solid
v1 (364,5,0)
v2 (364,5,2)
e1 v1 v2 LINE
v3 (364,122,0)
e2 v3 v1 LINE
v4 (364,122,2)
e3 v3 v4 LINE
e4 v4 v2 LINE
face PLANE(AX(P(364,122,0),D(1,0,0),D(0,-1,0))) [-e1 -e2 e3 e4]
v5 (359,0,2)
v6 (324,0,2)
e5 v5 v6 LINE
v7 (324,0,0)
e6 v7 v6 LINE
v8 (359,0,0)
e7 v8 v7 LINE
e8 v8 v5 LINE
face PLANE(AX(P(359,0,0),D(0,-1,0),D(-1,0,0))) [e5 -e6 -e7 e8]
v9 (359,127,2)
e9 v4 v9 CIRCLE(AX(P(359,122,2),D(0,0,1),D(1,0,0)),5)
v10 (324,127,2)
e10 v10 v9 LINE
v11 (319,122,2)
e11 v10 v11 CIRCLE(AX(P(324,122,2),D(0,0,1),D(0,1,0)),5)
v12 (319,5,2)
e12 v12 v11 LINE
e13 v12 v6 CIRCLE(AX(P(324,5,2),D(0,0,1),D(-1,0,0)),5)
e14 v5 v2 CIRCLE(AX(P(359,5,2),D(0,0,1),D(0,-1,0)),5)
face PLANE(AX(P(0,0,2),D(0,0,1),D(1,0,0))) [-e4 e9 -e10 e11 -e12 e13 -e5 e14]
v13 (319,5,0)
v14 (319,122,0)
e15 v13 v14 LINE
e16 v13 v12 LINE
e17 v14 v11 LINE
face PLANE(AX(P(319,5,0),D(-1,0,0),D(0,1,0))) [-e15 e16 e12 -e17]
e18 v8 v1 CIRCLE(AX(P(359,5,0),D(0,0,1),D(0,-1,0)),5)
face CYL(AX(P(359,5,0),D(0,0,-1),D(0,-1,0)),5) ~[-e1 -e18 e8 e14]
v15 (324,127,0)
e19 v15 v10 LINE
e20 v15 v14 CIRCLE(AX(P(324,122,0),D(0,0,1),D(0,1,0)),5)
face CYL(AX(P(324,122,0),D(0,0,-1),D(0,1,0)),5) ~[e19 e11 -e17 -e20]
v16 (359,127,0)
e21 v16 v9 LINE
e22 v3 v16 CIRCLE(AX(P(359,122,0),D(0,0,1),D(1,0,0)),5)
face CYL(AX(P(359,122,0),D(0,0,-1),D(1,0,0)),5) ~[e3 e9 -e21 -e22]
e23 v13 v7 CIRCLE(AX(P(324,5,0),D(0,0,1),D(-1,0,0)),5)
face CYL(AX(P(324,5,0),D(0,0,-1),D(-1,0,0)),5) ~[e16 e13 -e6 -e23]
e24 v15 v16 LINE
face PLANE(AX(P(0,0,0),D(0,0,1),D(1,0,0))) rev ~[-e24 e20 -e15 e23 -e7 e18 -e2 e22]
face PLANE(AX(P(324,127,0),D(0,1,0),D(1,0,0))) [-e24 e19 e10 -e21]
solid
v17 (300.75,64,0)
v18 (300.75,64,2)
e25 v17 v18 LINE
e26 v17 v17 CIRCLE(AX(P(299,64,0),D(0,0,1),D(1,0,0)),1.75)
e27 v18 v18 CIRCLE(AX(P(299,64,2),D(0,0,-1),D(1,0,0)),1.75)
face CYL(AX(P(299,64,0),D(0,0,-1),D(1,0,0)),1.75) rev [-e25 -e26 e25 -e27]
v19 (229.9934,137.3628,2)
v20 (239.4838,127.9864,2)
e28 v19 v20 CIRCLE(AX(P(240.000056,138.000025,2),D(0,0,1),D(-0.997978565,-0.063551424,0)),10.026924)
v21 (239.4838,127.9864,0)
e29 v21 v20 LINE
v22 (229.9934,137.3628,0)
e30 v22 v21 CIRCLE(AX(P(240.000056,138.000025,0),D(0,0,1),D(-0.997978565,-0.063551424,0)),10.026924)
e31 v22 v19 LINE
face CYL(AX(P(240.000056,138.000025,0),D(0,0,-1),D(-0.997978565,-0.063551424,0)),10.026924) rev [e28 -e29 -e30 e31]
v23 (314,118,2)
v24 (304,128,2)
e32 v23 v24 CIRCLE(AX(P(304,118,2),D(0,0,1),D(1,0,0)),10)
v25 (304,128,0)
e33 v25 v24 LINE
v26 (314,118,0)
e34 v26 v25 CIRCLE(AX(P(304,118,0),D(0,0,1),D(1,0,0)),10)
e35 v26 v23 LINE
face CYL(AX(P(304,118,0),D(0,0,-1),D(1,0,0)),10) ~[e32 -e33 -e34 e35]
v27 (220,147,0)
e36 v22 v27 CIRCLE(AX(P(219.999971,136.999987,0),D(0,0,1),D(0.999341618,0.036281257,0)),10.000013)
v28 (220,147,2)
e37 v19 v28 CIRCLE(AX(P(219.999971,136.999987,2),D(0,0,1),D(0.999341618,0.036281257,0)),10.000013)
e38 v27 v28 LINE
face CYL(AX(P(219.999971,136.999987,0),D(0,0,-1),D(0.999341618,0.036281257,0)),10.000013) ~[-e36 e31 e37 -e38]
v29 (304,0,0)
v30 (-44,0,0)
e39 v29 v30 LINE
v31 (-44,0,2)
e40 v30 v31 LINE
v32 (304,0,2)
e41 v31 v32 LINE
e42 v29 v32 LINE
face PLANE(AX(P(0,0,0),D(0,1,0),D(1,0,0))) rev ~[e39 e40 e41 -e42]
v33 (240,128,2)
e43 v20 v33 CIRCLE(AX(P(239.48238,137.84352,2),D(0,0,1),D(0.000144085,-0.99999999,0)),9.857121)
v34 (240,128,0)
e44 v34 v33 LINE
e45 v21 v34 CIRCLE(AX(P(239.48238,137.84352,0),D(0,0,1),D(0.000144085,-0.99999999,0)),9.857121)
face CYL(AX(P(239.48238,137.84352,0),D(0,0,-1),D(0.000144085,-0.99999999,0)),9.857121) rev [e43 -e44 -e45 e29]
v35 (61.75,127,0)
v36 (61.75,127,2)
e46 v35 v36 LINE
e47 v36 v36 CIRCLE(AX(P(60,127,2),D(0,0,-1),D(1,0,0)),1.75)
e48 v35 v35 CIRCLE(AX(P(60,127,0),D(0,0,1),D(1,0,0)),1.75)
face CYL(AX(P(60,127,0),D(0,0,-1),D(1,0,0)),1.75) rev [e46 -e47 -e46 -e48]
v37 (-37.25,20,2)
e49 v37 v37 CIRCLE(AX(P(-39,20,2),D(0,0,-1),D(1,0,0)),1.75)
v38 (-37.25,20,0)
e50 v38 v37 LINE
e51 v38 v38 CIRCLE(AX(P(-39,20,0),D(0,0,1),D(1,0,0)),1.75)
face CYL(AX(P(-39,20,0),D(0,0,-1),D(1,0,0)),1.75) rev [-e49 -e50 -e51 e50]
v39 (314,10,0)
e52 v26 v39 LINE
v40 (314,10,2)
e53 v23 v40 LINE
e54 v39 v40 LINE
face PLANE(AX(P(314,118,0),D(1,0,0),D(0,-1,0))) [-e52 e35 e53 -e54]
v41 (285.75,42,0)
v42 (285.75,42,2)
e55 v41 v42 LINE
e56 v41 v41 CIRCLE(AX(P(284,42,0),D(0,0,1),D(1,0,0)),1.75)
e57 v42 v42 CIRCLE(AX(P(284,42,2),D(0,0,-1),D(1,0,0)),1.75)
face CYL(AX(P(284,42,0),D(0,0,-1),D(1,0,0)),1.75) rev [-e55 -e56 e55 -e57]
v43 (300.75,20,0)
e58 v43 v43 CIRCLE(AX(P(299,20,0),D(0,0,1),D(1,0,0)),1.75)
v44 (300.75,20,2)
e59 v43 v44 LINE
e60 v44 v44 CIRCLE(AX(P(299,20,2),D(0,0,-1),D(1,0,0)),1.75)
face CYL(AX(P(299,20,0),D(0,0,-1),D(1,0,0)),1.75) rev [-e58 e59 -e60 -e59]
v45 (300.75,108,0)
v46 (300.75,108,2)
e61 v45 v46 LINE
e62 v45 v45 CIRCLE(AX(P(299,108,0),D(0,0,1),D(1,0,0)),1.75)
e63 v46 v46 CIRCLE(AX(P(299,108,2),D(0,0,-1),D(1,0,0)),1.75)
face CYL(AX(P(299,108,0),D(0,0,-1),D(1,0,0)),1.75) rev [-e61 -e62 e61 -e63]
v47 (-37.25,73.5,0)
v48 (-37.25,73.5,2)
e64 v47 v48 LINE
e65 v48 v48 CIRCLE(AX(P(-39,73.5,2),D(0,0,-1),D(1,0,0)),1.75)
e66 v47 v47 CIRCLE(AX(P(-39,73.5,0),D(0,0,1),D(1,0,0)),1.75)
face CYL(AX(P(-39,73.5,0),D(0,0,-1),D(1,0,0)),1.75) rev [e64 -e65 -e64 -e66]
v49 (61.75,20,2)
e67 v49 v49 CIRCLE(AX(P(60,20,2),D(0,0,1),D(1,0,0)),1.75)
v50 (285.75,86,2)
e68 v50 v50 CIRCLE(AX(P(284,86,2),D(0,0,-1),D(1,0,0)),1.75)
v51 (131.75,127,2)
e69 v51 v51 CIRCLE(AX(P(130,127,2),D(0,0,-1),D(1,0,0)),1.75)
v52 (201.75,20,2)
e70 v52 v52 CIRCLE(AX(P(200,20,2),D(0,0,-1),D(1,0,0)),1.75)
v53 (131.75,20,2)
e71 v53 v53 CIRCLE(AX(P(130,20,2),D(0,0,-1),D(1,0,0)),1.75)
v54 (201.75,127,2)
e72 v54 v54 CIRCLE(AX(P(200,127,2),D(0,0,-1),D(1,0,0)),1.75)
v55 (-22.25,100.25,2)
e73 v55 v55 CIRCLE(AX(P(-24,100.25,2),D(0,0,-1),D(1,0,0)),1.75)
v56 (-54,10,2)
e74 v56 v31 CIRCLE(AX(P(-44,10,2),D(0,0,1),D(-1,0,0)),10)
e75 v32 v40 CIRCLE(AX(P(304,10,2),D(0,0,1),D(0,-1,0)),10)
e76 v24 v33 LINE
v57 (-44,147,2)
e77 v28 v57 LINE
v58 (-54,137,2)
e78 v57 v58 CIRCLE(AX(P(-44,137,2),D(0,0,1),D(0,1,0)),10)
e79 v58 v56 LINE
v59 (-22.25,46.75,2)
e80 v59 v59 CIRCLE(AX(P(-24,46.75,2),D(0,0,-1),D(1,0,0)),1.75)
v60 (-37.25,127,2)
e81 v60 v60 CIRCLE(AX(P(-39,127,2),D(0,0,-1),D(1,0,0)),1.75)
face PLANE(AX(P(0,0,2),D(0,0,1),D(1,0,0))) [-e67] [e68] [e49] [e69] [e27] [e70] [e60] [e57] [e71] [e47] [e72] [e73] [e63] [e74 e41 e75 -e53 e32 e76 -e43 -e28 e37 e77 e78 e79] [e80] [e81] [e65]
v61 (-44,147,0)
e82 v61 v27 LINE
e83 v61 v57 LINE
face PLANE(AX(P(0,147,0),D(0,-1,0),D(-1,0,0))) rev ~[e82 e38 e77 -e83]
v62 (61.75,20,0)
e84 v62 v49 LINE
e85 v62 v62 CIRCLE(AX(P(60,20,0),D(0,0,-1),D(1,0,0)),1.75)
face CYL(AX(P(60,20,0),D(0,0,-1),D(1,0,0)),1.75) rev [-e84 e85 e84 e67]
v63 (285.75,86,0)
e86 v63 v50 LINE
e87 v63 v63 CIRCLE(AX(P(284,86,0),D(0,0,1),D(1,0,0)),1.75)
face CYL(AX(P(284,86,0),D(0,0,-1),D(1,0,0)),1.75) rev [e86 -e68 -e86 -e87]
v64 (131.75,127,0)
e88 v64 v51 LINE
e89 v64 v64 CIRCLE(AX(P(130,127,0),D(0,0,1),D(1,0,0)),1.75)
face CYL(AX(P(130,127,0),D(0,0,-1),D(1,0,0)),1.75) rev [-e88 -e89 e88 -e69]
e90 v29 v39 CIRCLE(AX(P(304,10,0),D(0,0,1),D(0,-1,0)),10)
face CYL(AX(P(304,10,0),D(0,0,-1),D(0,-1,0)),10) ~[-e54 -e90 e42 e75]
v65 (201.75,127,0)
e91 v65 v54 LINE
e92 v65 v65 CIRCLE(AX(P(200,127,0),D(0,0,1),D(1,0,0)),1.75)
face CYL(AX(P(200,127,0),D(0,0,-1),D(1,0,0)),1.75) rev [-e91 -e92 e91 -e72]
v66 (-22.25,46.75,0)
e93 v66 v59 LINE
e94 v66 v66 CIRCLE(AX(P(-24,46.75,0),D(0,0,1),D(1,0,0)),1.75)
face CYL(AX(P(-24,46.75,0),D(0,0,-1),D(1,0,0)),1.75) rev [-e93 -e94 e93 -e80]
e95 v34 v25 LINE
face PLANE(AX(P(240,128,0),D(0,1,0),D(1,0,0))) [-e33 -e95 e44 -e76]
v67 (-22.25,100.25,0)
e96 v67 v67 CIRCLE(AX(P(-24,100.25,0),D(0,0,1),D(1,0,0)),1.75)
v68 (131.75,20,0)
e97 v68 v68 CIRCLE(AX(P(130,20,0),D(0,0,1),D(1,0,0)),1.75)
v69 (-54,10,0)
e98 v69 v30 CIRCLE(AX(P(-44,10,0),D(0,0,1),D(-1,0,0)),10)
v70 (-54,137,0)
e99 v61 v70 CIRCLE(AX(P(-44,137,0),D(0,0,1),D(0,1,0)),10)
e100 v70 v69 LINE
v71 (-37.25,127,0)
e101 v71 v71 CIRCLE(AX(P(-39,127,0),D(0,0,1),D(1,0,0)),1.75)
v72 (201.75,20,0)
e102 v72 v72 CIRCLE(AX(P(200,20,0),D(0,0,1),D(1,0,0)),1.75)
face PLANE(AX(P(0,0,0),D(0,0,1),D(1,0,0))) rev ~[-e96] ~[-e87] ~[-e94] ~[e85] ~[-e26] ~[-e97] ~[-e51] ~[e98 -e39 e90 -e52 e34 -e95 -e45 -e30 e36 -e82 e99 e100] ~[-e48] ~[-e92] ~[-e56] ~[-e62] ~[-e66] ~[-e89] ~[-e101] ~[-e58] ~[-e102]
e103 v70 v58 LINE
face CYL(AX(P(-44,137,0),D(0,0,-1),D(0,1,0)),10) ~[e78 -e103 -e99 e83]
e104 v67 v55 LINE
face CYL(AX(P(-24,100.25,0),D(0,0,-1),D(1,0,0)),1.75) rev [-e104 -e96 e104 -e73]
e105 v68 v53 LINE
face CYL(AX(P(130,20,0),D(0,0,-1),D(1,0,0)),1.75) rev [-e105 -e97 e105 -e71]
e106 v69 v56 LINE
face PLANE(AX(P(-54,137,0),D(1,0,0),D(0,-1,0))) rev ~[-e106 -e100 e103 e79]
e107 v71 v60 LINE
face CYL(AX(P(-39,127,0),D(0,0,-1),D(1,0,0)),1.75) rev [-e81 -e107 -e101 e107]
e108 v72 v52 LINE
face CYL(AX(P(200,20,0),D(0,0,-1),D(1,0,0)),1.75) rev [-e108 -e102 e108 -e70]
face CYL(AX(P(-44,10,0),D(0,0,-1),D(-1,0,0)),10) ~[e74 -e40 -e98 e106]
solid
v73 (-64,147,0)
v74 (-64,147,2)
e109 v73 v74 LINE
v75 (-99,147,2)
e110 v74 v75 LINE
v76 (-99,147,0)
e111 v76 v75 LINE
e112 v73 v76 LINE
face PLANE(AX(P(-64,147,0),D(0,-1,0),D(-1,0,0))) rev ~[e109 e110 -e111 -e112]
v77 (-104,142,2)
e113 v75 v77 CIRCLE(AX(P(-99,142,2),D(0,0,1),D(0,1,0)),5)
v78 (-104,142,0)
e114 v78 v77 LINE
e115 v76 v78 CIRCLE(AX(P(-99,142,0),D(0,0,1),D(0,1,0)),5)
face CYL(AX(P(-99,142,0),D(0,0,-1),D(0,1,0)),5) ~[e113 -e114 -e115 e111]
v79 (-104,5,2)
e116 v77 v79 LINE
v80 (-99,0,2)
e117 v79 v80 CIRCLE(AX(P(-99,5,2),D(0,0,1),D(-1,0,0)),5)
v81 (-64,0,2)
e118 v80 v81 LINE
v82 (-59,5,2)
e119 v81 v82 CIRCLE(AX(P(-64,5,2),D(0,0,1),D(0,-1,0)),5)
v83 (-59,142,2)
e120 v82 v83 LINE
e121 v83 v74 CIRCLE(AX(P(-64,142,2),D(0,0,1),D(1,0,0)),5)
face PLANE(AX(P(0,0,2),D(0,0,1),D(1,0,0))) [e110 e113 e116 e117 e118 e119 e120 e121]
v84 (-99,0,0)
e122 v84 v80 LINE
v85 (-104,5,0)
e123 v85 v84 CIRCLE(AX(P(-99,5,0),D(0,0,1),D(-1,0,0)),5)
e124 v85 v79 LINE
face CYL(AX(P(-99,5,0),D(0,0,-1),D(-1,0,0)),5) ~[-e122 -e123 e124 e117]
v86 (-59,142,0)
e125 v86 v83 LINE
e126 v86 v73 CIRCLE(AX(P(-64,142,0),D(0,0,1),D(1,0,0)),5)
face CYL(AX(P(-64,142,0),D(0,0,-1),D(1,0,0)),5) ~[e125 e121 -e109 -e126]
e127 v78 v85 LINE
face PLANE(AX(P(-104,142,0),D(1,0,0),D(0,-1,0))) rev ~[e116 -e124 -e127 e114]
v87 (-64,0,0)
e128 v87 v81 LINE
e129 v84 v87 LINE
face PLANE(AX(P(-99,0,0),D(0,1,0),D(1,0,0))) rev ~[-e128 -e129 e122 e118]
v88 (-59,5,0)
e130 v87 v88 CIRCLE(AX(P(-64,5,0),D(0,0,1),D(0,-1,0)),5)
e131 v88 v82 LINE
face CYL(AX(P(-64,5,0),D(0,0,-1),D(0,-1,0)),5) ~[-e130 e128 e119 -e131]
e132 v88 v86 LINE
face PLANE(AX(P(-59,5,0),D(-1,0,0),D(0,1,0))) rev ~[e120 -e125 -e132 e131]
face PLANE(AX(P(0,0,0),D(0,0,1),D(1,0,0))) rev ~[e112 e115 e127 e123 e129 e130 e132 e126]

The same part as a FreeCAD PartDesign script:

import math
import FreeCAD as App
import Part
import Sketcher
from FreeCAD import Vector
Q = App.Units.Quantity

doc = App.newDocument("Part")
body = doc.addObject("PartDesign::Body", "Body")
body.AllowCompound = True

# Sketch on XY plane
sketch1 = doc.addObject("Sketcher::SketchObject", "Sketch")
body.addObject(sketch1)
sketch1.AttachmentSupport = (doc.XY_Plane, [""])
sketch1.MapMode = "FlatFace"
sketch1.addGeometry([
    Part.ArcOfCircle(Part.Circle(Vector(304, 10, 0), Vector(0, 0, 1), 10), math.radians(-90), math.radians(0)),  # 0
    Part.LineSegment(Vector(314, 10, 0), Vector(314, 118, 0)),  # 1
    Part.ArcOfCircle(Part.Circle(Vector(304, 118, 0), Vector(0, 0, 1), 10), math.radians(0), math.radians(90)),  # 2
    Part.LineSegment(Vector(304, 128, 0), Vector(240, 128, 0)),  # 3
    Part.ArcOfCircle(Part.Circle(Vector(239.5, 137.8, 0), Vector(0, 0, 1), 9.9), math.radians(-89.99), math.radians(-86.99)),  # 4
    Part.ArcOfCircle(Part.Circle(Vector(240, 138, 0), Vector(0, 0, 1), 10), math.radians(-176), math.radians(-93)),  # 5
    Part.ArcOfCircle(Part.Circle(Vector(220, 137, 0), Vector(0, 0, 1), 10), math.radians(2), math.radians(90)),  # 6
    Part.LineSegment(Vector(220, 147, 0), Vector(-44, 147, 0)),  # 7
    Part.ArcOfCircle(Part.Circle(Vector(-44, 137, 0), Vector(0, 0, 1), 10), math.radians(90), math.radians(180)),  # 8
    Part.LineSegment(Vector(-54, 137, 0), Vector(-54, 10, 0)),  # 9
    Part.ArcOfCircle(Part.Circle(Vector(-44, 10, 0), Vector(0, 0, 1), 10), math.radians(180), math.radians(270)),  # 10
    Part.LineSegment(Vector(-44, 0, 0), Vector(304, 0, 0)),  # 11
    Part.Circle(Vector(60, 20, 0), Vector(0, 0, 1), 1.8),  # 12
    Part.Circle(Vector(130, 20, 0), Vector(0, 0, 1), 1.8),  # 13
    Part.Circle(Vector(200, 20, 0), Vector(0, 0, 1), 1.8),  # 14
    Part.Circle(Vector(60, 127, 0), Vector(0, 0, 1), 1.8),  # 15
    Part.Circle(Vector(200, 127, 0), Vector(0, 0, 1), 1.8),  # 16
    Part.Circle(Vector(130, 127, 0), Vector(0, 0, 1), 1.8),  # 17
    Part.Circle(Vector(-24, 46.8, 0), Vector(0, 0, 1), 1.8),  # 18
    Part.Circle(Vector(-24, 100.2, 0), Vector(0, 0, 1), 1.8),  # 19
    Part.Circle(Vector(284, 86, 0), Vector(0, 0, 1), 1.8),  # 20
    Part.Circle(Vector(284, 42, 0), Vector(0, 0, 1), 1.8),  # 21
    Part.Circle(Vector(-39, 20, 0), Vector(0, 0, 1), 1.8),  # 22
    Part.Circle(Vector(-39, 73.5, 0), Vector(0, 0, 1), 1.8),  # 23
    Part.Circle(Vector(-39, 127, 0), Vector(0, 0, 1), 1.8),  # 24
    Part.Circle(Vector(299, 20, 0), Vector(0, 0, 1), 1.8),  # 25
    Part.Circle(Vector(299, 108, 0), Vector(0, 0, 1), 1.8),  # 26
    Part.Circle(Vector(299, 64, 0), Vector(0, 0, 1), 1.8),  # 27
], False)
sketch1.addConstraint([
    Sketcher.Constraint("Tangent", 0, 2, 1, 1),
    Sketcher.Constraint("Tangent", 1, 2, 2, 1),
    Sketcher.Constraint("Tangent", 2, 2, 3, 1),
    Sketcher.Constraint("Coincident", 3, 2, 4, 2),
    Sketcher.Constraint("Coincident", 4, 1, 5, 2),
    Sketcher.Constraint("Coincident", 5, 1, 6, 1),
    Sketcher.Constraint("Tangent", 6, 2, 7, 1),
    Sketcher.Constraint("Tangent", 7, 2, 8, 1),
    Sketcher.Constraint("Tangent", 8, 2, 9, 1),
    Sketcher.Constraint("Tangent", 9, 2, 10, 1),
    Sketcher.Constraint("Tangent", 10, 2, 11, 1),
    Sketcher.Constraint("Tangent", 11, 2, 0, 1),
    Sketcher.Constraint("Vertical", 1),
    Sketcher.Constraint("Horizontal", 3),
    Sketcher.Constraint("Horizontal", 7),
    Sketcher.Constraint("Vertical", 9),
    Sketcher.Constraint("Horizontal", 11),
    Sketcher.Constraint("Equal", 0, 2),
    Sketcher.Constraint("Equal", 2, 6),
    Sketcher.Constraint("Equal", 6, 8),
    Sketcher.Constraint("Equal", 8, 10),
    Sketcher.Constraint("Equal", 12, 13),
    Sketcher.Constraint("Equal", 13, 14),
    Sketcher.Constraint("Equal", 14, 15),
    Sketcher.Constraint("Equal", 15, 16),
    Sketcher.Constraint("Equal", 16, 17),
    Sketcher.Constraint("Equal", 17, 18),
    Sketcher.Constraint("Equal", 18, 19),
    Sketcher.Constraint("Equal", 19, 20),
    Sketcher.Constraint("Equal", 20, 21),
    Sketcher.Constraint("Equal", 21, 22),
    Sketcher.Constraint("Equal", 22, 23),
    Sketcher.Constraint("Equal", 23, 24),
    Sketcher.Constraint("Equal", 24, 25),
    Sketcher.Constraint("Equal", 25, 26),
    Sketcher.Constraint("Equal", 26, 27),
    Sketcher.Constraint("PointOnObject", 10, 2, -1),
    Sketcher.Constraint("Horizontal", 12, 3, 13, 3),
    Sketcher.Constraint("Horizontal", 13, 3, 14, 3),
    Sketcher.Constraint("Horizontal", 15, 3, 16, 3),
    Sketcher.Constraint("Horizontal", 16, 3, 17, 3),
    Sketcher.Constraint("Horizontal", 14, 3, 22, 3),
    Sketcher.Constraint("Horizontal", 17, 3, 24, 3),
    Sketcher.Constraint("Horizontal", 22, 3, 25, 3),
    Sketcher.Constraint("Vertical", 12, 3, 15, 3),
    Sketcher.Constraint("Vertical", 14, 3, 16, 3),
    Sketcher.Constraint("Vertical", 13, 3, 17, 3),
    Sketcher.Constraint("Vertical", 18, 3, 19, 3),
    Sketcher.Constraint("Vertical", 20, 3, 21, 3),
    Sketcher.Constraint("Vertical", 22, 3, 23, 3),
    Sketcher.Constraint("Vertical", 23, 3, 24, 3),
    Sketcher.Constraint("Vertical", 25, 3, 26, 3),
    Sketcher.Constraint("Vertical", 26, 3, 27, 3),
    Sketcher.Constraint("Vertical", 5, 3, 3, 2),
    Sketcher.Constraint("Radius", 0, Q("10 mm")),
    Sketcher.Constraint("Diameter", 12, Q("3.5 mm")),
    Sketcher.Constraint("DistanceX", 3, 2, 3, 1, Q("64 mm")),
    Sketcher.Constraint("DistanceY", -1, 1, 5, 3, Q("138 mm")),
    Sketcher.Constraint("DistanceX", 8, 3, -1, 1, Q("44 mm")),
    Sketcher.Constraint("DistanceX", -1, 1, 12, 3, Q("60 mm")),
    Sketcher.Constraint("DistanceY", -1, 1, 12, 3, Q("20 mm")),
    Sketcher.Constraint("DistanceY", -1, 1, 27, 3, Q("64 mm")),
    Sketcher.Constraint("DistanceY", -1, 1, 2, 2, Q("128 mm")),
    Sketcher.Constraint("DistanceY", -1, 1, 6, 2, Q("147 mm")),
    Sketcher.Constraint("DistanceX", 6, 3, 5, 3, Q("20 mm")),
    Sketcher.Constraint("DistanceX", 12, 3, 13, 3, Q("70 mm")),
    Sketcher.Constraint("DistanceX", 13, 3, 14, 3, Q("70 mm")),
    Sketcher.Constraint("DistanceX", 14, 3, 6, 3, Q("20 mm")),
    Sketcher.Constraint("DistanceY", 15, 3, 8, 3, Q("10 mm")),
    Sketcher.Constraint("DistanceX", 10, 3, 18, 3, Q("20 mm")),
    Sketcher.Constraint("DistanceX", 20, 3, 2, 3, Q("20 mm")),
    Sketcher.Constraint("DistanceY", 21, 3, 20, 3, Q("44 mm")),
    Sketcher.Constraint("DistanceY", 14, 3, 21, 3, Q("22 mm")),
    Sketcher.Constraint("DistanceX", 10, 3, 22, 3, Q("5 mm")),
    Sketcher.Constraint("DistanceX", 25, 3, 0, 3, Q("5 mm")),
    Sketcher.Constraint("DistanceY", 26, 3, 2, 3, Q("10 mm")),
    Sketcher.Constraint("DistanceY", -1, 1, 23, 3, Q("73.5 mm")),
    Sketcher.Constraint("DistanceY", 18, 3, 19, 3, Q("53.5 mm")),
    Sketcher.Constraint("DistanceY", 12, 3, 18, 3, Q("26.75 mm")),
    Sketcher.Constraint("Radius", 4, Q("9.8571 mm")),
    Sketcher.Constraint("Radius", 5, Q("10.0269 mm")),
    Sketcher.Constraint("DistanceX", 5, 1, 4, 3, Q("9.489 mm")),
])
pad1 = doc.addObject("PartDesign::Pad", "Pad")
body.addObject(pad1)
pad1.Profile = sketch1
pad1.Length = 2

# Sketch on XY plane
sketch2 = doc.addObject("Sketcher::SketchObject", "Sketch001")
body.addObject(sketch2)
sketch2.AttachmentSupport = (doc.XY_Plane, [""])
sketch2.MapMode = "FlatFace"
sketch2.addGeometry([
    Part.ArcOfCircle(Part.Circle(Vector(-64, 142, 0), Vector(0, 0, 1), 5), math.radians(0), math.radians(90)),  # 0
    Part.LineSegment(Vector(-64, 147, 0), Vector(-99, 147, 0)),  # 1
    Part.ArcOfCircle(Part.Circle(Vector(-99, 142, 0), Vector(0, 0, 1), 5), math.radians(90), math.radians(180)),  # 2
    Part.LineSegment(Vector(-104, 142, 0), Vector(-104, 5, 0)),  # 3
    Part.ArcOfCircle(Part.Circle(Vector(-99, 5, 0), Vector(0, 0, 1), 5), math.radians(180), math.radians(270)),  # 4
    Part.LineSegment(Vector(-99, 0, 0), Vector(-64, 0, 0)),  # 5
    Part.ArcOfCircle(Part.Circle(Vector(-64, 5, 0), Vector(0, 0, 1), 5), math.radians(-90), math.radians(0)),  # 6
    Part.LineSegment(Vector(-59, 5, 0), Vector(-59, 142, 0)),  # 7
    Part.LineSegment(Vector(359, 127, 0), Vector(324, 127, 0)),  # 8
    Part.ArcOfCircle(Part.Circle(Vector(324, 122, 0), Vector(0, 0, 1), 5), math.radians(90), math.radians(180)),  # 9
    Part.LineSegment(Vector(319, 122, 0), Vector(319, 5, 0)),  # 10
    Part.ArcOfCircle(Part.Circle(Vector(324, 5, 0), Vector(0, 0, 1), 5), math.radians(180), math.radians(270)),  # 11
    Part.LineSegment(Vector(324, 0, 0), Vector(359, 0, 0)),  # 12
    Part.ArcOfCircle(Part.Circle(Vector(359, 5, 0), Vector(0, 0, 1), 5), math.radians(-90), math.radians(0)),  # 13
    Part.LineSegment(Vector(364, 5, 0), Vector(364, 122, 0)),  # 14
    Part.ArcOfCircle(Part.Circle(Vector(359, 122, 0), Vector(0, 0, 1), 5), math.radians(0), math.radians(90)),  # 15
], False)
sketch2.addConstraint([
    Sketcher.Constraint("Tangent", 0, 2, 1, 1),
    Sketcher.Constraint("Tangent", 1, 2, 2, 1),
    Sketcher.Constraint("Tangent", 2, 2, 3, 1),
    Sketcher.Constraint("Tangent", 3, 2, 4, 1),
    Sketcher.Constraint("Tangent", 4, 2, 5, 1),
    Sketcher.Constraint("Tangent", 5, 2, 6, 1),
    Sketcher.Constraint("Tangent", 6, 2, 7, 1),
    Sketcher.Constraint("Tangent", 7, 2, 0, 1),
    Sketcher.Constraint("Tangent", 8, 2, 9, 1),
    Sketcher.Constraint("Tangent", 9, 2, 10, 1),
    Sketcher.Constraint("Tangent", 10, 2, 11, 1),
    Sketcher.Constraint("Tangent", 11, 2, 12, 1),
    Sketcher.Constraint("Tangent", 12, 2, 13, 1),
    Sketcher.Constraint("Tangent", 13, 2, 14, 1),
    Sketcher.Constraint("Tangent", 14, 2, 15, 1),
    Sketcher.Constraint("Tangent", 15, 2, 8, 1),
    Sketcher.Constraint("Horizontal", 1),
    Sketcher.Constraint("Vertical", 3),
    Sketcher.Constraint("Horizontal", 5),
    Sketcher.Constraint("Vertical", 7),
    Sketcher.Constraint("Horizontal", 8),
    Sketcher.Constraint("Vertical", 10),
    Sketcher.Constraint("Horizontal", 12),
    Sketcher.Constraint("Vertical", 14),
    Sketcher.Constraint("Equal", 0, 2),
    Sketcher.Constraint("Equal", 2, 4),
    Sketcher.Constraint("Equal", 4, 6),
    Sketcher.Constraint("Equal", 6, 9),
    Sketcher.Constraint("Equal", 9, 11),
    Sketcher.Constraint("Equal", 11, 13),
    Sketcher.Constraint("Equal", 13, 15),
    Sketcher.Constraint("PointOnObject", 4, 2, -1),
    Sketcher.Constraint("PointOnObject", 11, 2, -1),
    Sketcher.Constraint("Equal", 5, 8),
    Sketcher.Constraint("Radius", 0, Q("5 mm")),
    Sketcher.Constraint("DistanceX", 0, 3, -1, 1, Q("64 mm")),
    Sketcher.Constraint("DistanceY", -1, 1, 0, 2, Q("147 mm")),
    Sketcher.Constraint("DistanceY", 9, 3, 0, 3, Q("20 mm")),
    Sketcher.Constraint("DistanceX", 3, 2, 6, 2, Q("45 mm")),
    Sketcher.Constraint("DistanceX", -1, 1, 9, 3, Q("324 mm")),
])
pad2 = doc.addObject("PartDesign::Pad", "Pad001")
body.addObject(pad2)
pad2.Profile = sketch2
pad2.Length = 2

doc.recompute()
